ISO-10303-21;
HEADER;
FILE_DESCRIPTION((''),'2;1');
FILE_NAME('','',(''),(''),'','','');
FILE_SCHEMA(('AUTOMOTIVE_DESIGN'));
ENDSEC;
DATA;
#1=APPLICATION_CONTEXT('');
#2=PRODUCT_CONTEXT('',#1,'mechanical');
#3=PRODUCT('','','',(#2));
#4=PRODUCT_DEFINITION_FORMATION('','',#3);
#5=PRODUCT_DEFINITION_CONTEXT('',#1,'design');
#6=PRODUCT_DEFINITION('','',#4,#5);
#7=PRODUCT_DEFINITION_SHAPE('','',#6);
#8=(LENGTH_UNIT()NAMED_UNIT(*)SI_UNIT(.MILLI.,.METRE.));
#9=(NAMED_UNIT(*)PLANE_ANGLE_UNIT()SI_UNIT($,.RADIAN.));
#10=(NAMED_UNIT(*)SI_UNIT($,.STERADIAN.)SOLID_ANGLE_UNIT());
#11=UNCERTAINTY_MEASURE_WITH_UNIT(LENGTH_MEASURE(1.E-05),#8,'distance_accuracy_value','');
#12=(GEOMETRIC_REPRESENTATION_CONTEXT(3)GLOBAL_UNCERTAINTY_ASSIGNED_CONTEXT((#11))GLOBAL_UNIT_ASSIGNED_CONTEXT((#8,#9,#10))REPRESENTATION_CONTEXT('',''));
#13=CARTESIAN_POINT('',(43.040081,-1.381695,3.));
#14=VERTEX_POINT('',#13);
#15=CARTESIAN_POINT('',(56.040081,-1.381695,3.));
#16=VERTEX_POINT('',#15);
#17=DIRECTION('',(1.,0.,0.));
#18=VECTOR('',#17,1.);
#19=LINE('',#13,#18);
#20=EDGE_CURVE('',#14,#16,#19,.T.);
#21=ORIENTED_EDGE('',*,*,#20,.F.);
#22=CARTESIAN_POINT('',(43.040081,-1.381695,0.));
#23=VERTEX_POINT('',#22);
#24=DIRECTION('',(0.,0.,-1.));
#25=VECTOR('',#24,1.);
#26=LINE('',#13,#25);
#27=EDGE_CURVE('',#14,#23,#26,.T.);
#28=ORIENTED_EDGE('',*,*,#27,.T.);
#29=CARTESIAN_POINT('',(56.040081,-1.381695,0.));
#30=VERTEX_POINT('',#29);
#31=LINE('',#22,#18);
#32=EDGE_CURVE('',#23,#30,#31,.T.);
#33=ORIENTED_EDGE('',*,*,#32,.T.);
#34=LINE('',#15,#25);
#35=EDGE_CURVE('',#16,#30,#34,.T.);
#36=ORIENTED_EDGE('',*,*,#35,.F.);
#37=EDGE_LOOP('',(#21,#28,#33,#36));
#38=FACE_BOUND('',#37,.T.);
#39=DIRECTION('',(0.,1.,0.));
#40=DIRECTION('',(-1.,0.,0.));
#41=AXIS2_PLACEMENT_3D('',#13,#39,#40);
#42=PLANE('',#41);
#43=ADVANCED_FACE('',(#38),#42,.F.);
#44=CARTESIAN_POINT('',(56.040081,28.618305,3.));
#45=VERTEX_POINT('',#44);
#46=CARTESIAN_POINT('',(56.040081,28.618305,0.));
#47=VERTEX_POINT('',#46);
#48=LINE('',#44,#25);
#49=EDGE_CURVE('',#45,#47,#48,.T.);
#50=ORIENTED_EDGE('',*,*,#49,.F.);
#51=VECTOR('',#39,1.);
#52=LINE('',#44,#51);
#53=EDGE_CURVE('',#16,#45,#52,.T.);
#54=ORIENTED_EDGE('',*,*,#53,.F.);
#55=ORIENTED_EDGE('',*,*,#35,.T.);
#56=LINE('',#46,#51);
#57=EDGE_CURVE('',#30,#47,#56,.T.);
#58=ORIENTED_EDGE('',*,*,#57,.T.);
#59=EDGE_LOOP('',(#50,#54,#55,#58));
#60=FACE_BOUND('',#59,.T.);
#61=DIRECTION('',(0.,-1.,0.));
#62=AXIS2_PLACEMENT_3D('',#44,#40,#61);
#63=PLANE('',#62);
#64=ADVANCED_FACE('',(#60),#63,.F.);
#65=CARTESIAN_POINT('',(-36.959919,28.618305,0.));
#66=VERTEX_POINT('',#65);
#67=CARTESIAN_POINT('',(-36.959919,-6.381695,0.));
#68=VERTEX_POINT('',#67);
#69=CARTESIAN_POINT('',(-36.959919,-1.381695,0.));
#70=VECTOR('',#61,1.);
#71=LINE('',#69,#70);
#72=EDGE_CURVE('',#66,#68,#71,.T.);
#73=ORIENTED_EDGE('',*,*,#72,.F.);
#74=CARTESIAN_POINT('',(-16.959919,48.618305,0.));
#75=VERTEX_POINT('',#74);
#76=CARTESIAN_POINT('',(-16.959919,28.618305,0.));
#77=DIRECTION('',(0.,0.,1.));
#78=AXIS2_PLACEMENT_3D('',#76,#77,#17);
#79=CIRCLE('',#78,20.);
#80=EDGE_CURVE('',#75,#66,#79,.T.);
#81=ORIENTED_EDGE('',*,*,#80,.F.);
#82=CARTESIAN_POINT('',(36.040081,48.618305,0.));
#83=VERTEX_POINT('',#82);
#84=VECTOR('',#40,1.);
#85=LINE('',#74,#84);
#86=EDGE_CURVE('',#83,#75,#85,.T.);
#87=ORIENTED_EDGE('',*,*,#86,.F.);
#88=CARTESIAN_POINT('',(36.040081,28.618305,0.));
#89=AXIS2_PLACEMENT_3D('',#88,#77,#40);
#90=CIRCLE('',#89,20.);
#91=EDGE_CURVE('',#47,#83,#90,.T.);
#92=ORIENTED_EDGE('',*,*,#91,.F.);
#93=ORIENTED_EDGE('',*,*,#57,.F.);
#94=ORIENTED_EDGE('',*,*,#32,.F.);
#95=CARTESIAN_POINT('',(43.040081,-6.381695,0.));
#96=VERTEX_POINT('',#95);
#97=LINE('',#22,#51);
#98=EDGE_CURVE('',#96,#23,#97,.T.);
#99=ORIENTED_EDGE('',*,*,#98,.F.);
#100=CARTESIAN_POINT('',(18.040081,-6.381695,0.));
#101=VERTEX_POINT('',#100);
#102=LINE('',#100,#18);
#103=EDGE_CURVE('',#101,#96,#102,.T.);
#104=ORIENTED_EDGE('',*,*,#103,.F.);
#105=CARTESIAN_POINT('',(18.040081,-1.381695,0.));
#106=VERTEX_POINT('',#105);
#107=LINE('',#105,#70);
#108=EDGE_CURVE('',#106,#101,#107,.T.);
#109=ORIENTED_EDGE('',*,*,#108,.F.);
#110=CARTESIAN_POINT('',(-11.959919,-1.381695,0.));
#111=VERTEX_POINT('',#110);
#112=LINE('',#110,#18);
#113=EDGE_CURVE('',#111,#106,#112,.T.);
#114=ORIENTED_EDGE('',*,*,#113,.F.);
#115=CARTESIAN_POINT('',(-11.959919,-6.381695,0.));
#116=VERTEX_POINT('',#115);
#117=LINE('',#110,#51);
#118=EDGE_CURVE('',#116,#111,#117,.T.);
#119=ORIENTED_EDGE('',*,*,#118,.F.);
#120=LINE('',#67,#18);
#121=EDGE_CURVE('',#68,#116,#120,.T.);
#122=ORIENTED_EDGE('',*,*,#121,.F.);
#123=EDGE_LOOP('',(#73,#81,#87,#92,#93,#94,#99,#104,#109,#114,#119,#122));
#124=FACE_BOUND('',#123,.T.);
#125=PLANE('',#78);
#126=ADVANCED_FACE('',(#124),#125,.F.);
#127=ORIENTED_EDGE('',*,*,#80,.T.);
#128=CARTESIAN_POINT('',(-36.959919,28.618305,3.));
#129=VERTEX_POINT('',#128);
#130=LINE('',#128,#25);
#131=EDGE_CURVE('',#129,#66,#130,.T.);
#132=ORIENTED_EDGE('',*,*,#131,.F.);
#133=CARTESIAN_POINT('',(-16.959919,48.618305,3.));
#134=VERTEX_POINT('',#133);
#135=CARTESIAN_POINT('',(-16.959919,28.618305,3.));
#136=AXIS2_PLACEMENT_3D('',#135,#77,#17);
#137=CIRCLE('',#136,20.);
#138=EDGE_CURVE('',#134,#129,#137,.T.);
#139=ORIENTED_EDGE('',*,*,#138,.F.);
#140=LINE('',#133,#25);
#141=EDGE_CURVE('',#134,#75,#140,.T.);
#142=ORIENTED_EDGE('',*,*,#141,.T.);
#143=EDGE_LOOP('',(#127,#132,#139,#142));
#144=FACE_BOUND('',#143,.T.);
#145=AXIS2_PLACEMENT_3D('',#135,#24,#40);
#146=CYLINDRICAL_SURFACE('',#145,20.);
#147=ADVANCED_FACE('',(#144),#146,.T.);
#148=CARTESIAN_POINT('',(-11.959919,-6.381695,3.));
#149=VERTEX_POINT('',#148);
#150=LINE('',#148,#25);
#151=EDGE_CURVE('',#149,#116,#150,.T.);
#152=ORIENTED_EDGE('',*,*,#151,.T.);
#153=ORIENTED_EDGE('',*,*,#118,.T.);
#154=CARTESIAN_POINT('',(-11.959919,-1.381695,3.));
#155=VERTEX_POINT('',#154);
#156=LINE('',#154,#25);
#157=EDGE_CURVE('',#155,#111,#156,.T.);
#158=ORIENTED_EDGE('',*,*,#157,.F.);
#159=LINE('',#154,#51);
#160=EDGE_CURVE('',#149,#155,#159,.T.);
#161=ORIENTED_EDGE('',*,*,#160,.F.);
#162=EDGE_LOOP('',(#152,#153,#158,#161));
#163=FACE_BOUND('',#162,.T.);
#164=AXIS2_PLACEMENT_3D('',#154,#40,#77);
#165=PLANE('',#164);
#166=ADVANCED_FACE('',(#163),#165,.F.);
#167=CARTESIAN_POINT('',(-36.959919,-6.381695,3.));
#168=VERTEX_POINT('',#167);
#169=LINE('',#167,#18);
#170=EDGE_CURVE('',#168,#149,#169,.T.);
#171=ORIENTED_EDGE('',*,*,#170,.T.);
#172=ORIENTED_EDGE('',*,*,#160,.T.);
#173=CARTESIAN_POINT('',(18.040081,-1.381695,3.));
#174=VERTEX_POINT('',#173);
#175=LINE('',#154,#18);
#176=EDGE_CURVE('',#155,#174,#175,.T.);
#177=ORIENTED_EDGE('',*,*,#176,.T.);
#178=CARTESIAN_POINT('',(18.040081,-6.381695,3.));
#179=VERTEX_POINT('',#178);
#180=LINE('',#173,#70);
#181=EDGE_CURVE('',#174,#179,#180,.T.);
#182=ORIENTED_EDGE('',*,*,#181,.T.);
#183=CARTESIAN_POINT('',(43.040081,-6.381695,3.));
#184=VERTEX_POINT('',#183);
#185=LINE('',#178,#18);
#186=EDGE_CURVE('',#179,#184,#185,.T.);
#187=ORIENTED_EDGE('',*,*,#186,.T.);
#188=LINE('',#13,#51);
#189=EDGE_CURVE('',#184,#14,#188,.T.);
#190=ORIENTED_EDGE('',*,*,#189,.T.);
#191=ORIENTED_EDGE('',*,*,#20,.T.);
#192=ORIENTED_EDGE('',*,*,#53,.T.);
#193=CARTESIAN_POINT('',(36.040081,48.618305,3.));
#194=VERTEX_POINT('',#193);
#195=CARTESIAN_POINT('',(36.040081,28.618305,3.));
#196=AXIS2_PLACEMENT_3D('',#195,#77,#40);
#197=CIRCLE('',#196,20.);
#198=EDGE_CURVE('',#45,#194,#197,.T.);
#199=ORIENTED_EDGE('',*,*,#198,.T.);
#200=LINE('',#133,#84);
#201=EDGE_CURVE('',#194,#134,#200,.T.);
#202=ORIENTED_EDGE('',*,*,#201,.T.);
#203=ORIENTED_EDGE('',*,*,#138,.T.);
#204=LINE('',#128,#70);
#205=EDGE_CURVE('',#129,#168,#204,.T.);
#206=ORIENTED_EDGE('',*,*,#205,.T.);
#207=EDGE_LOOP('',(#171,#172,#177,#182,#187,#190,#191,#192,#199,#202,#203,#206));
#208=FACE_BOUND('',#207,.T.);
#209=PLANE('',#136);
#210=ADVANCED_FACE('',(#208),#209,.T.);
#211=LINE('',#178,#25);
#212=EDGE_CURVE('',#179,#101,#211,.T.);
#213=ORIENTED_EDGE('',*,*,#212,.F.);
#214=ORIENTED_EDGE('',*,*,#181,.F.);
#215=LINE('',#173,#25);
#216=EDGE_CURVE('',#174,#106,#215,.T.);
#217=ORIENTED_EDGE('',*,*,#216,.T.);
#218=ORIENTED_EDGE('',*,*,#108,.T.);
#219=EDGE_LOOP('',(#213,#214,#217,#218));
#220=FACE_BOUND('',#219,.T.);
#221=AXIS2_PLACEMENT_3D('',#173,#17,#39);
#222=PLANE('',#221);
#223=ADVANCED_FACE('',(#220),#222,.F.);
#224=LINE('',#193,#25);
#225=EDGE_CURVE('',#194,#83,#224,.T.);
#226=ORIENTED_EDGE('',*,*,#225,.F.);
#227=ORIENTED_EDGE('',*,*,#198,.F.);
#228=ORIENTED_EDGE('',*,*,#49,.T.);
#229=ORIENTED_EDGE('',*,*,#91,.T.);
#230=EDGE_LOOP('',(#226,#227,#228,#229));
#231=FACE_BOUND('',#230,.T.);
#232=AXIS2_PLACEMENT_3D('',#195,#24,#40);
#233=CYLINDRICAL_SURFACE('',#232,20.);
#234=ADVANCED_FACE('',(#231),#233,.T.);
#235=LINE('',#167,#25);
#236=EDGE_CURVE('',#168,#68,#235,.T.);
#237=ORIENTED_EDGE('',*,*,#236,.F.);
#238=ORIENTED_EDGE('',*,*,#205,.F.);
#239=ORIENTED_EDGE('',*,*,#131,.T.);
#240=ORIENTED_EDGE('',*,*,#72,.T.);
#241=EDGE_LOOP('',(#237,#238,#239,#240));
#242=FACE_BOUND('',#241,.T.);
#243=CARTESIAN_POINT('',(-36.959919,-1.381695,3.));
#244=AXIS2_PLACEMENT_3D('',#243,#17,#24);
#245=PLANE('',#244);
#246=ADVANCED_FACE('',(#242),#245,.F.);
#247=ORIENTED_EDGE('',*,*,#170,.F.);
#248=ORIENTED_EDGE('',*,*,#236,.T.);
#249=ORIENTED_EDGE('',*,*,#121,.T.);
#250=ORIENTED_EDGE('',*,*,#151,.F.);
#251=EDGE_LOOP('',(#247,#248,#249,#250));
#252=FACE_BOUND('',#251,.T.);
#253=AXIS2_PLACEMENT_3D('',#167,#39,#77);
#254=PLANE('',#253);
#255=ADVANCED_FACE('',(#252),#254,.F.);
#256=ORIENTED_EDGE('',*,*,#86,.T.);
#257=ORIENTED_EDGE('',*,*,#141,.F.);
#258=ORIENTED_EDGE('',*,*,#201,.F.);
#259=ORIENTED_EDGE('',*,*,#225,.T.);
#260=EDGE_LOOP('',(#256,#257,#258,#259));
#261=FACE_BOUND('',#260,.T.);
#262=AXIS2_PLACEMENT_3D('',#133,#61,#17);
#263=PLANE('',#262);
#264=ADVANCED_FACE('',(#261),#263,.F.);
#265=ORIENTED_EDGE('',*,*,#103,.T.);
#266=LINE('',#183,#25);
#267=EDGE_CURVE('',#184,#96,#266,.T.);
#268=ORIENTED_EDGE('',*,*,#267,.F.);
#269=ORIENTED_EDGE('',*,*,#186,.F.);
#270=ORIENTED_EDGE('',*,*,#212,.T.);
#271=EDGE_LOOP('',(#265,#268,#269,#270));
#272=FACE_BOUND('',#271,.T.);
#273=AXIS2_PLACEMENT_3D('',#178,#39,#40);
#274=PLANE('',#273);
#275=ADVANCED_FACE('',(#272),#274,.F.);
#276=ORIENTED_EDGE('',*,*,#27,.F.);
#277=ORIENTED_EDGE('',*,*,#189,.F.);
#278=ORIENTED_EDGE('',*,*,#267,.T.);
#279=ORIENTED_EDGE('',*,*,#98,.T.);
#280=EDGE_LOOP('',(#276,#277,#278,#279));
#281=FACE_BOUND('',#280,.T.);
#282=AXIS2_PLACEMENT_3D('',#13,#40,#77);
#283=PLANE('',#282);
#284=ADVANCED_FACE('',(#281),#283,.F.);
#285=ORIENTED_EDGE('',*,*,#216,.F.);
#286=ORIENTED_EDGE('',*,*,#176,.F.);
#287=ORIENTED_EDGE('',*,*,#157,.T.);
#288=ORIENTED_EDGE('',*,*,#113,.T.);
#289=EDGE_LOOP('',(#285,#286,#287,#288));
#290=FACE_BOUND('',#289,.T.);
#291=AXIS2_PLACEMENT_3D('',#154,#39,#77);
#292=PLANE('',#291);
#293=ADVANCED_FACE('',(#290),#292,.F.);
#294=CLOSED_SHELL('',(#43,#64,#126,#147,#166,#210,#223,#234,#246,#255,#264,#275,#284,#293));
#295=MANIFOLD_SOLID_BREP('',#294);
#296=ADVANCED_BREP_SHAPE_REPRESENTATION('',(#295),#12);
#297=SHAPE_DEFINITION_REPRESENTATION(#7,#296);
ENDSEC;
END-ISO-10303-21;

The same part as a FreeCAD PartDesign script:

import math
import FreeCAD as App
import Part
import Sketcher

V = App.Vector
Q = App.Units.Quantity

doc = App.newDocument("Part")
params = doc.addObject("Spreadsheet::Sheet", "Params")
for row, (alias, value) in enumerate([
    ("sketch1_radius", "20 mm"),
    ("sketch1_width", "13 mm"),
    ("sketch1_width2", "53 mm"),
    ("sketch1_width3", "25 mm"),
    ("sketch1_height", "35 mm"),
    ("pad1_length", "3 mm"),
], start=1):
    params.set(f"A{row}", alias)
    params.set(f"B{row}", "=" + value)
    params.setAlias(f"B{row}", alias)

body = doc.addObject("PartDesign::Body", "Body")

sketch1 = doc.addObject("Sketcher::SketchObject", "Sketch")
body.addObject(sketch1)
sketch1.AttachmentSupport = (doc.XY_Plane, [""])
sketch1.MapMode = "FlatFace"
sketch1.addGeometry(Part.LineSegment(V(43, -1, 0), V(56, -1, 0)), False)
sketch1.addGeometry(Part.LineSegment(V(56, -1, 0), V(56, 29, 0)), False)
sketch1.addGeometry(Part.ArcOfCircle(Part.Circle(V(36, 29, 0), V(0, 0, 1), 20), math.radians(0), math.radians(90)), False)
sketch1.addGeometry(Part.LineSegment(V(36, 49, 0), V(-17, 49, 0)), False)
sketch1.addGeometry(Part.ArcOfCircle(Part.Circle(V(-17, 29, 0), V(0, 0, 1), 20), math.radians(90), math.radians(180)), False)
sketch1.addGeometry(Part.LineSegment(V(-37, 29, 0), V(-37, -6, 0)), False)
sketch1.addGeometry(Part.LineSegment(V(-37, -6, 0), V(-12, -6, 0)), False)
sketch1.addGeometry(Part.LineSegment(V(-12, -6, 0), V(-12, -1, 0)), False)
sketch1.addGeometry(Part.LineSegment(V(-12, -1, 0), V(18, -1, 0)), False)
sketch1.addGeometry(Part.LineSegment(V(18, -1, 0), V(18, -6, 0)), False)
sketch1.addGeometry(Part.LineSegment(V(18, -6, 0), V(43, -6, 0)), False)
sketch1.addGeometry(Part.LineSegment(V(43, -6, 0), V(43, -1, 0)), False)
sketch1.addConstraint(Sketcher.Constraint("Coincident", 0, 2, 1, 1))
sketch1.addConstraint(Sketcher.Constraint("Tangent", 1, 2, 2, 1))
sketch1.addConstraint(Sketcher.Constraint("Tangent", 2, 2, 3, 1))
sketch1.addConstraint(Sketcher.Constraint("Tangent", 3, 2, 4, 1))
sketch1.addConstraint(Sketcher.Constraint("Tangent", 4, 2, 5, 1))
sketch1.addConstraint(Sketcher.Constraint("Coincident", 5, 2, 6, 1))
sketch1.addConstraint(Sketcher.Constraint("Coincident", 6, 2, 7, 1))
sketch1.addConstraint(Sketcher.Constraint("Coincident", 7, 2, 8, 1))
sketch1.addConstraint(Sketcher.Constraint("Coincident", 8, 2, 9, 1))
sketch1.addConstraint(Sketcher.Constraint("Coincident", 9, 2, 10, 1))
sketch1.addConstraint(Sketcher.Constraint("Coincident", 10, 2, 11, 1))
sketch1.addConstraint(Sketcher.Constraint("Coincident", 11, 2, 0, 1))
sketch1.addConstraint(Sketcher.Constraint("Horizontal", 0))
sketch1.addConstraint(Sketcher.Constraint("Vertical", 1))
sketch1.addConstraint(Sketcher.Constraint("Horizontal", 3))
sketch1.addConstraint(Sketcher.Constraint("Vertical", 5))
sketch1.addConstraint(Sketcher.Constraint("Horizontal", 6))
sketch1.addConstraint(Sketcher.Constraint("Vertical", 7))
sketch1.addConstraint(Sketcher.Constraint("Horizontal", 8))
sketch1.addConstraint(Sketcher.Constraint("Vertical", 9))
sketch1.addConstraint(Sketcher.Constraint("Horizontal", 10))
sketch1.addConstraint(Sketcher.Constraint("Vertical", 11))
sketch1.addConstraint(Sketcher.Constraint("Equal", 2, 4))
sketch1.addConstraint(Sketcher.Constraint("Horizontal", 0, 2, 7, 2))
sketch1.addConstraint(Sketcher.Constraint("Horizontal", 6, 2, 9, 2))
sketch1.addConstraint(Sketcher.Constraint("Equal", 6, 10))
sketch1.addConstraint(Sketcher.Constraint("Equal", 8, 1))
sketch1.addConstraint(Sketcher.Constraint("Radius", 2, Q("20 mm")))
sketch1.addConstraint(Sketcher.Constraint("DistanceX", 0, 1, 0, 2, Q("13 mm")))
sketch1.addConstraint(Sketcher.Constraint("DistanceX", 3, 2, 3, 1, Q("53 mm")))
sketch1.addConstraint(Sketcher.Constraint("DistanceX", 6, 1, 6, 2, Q("25 mm")))
sketch1.addConstraint(Sketcher.Constraint("DistanceY", 5, 2, 5, 1, Q("35 mm")))
sketch1.addConstraint(Sketcher.Constraint("DistanceX", -1, 1, 2, 3, Q("36.040081 mm")))
sketch1.addConstraint(Sketcher.Constraint("DistanceY", -1, 1, 2, 3, Q("28.618305 mm")))
sketch1.setExpression("Constraints[27]", "Params.sketch1_radius")
sketch1.setExpression("Constraints[28]", "Params.sketch1_width")
sketch1.setExpression("Constraints[29]", "Params.sketch1_width2")
sketch1.setExpression("Constraints[30]", "Params.sketch1_width3")
sketch1.setExpression("Constraints[31]", "Params.sketch1_height")
pad1 = doc.addObject("PartDesign::Pad", "Pad")
body.addObject(pad1)
pad1.Profile = sketch1
pad1.setExpression("Length", "Params.pad1_length")

doc.recompute()
